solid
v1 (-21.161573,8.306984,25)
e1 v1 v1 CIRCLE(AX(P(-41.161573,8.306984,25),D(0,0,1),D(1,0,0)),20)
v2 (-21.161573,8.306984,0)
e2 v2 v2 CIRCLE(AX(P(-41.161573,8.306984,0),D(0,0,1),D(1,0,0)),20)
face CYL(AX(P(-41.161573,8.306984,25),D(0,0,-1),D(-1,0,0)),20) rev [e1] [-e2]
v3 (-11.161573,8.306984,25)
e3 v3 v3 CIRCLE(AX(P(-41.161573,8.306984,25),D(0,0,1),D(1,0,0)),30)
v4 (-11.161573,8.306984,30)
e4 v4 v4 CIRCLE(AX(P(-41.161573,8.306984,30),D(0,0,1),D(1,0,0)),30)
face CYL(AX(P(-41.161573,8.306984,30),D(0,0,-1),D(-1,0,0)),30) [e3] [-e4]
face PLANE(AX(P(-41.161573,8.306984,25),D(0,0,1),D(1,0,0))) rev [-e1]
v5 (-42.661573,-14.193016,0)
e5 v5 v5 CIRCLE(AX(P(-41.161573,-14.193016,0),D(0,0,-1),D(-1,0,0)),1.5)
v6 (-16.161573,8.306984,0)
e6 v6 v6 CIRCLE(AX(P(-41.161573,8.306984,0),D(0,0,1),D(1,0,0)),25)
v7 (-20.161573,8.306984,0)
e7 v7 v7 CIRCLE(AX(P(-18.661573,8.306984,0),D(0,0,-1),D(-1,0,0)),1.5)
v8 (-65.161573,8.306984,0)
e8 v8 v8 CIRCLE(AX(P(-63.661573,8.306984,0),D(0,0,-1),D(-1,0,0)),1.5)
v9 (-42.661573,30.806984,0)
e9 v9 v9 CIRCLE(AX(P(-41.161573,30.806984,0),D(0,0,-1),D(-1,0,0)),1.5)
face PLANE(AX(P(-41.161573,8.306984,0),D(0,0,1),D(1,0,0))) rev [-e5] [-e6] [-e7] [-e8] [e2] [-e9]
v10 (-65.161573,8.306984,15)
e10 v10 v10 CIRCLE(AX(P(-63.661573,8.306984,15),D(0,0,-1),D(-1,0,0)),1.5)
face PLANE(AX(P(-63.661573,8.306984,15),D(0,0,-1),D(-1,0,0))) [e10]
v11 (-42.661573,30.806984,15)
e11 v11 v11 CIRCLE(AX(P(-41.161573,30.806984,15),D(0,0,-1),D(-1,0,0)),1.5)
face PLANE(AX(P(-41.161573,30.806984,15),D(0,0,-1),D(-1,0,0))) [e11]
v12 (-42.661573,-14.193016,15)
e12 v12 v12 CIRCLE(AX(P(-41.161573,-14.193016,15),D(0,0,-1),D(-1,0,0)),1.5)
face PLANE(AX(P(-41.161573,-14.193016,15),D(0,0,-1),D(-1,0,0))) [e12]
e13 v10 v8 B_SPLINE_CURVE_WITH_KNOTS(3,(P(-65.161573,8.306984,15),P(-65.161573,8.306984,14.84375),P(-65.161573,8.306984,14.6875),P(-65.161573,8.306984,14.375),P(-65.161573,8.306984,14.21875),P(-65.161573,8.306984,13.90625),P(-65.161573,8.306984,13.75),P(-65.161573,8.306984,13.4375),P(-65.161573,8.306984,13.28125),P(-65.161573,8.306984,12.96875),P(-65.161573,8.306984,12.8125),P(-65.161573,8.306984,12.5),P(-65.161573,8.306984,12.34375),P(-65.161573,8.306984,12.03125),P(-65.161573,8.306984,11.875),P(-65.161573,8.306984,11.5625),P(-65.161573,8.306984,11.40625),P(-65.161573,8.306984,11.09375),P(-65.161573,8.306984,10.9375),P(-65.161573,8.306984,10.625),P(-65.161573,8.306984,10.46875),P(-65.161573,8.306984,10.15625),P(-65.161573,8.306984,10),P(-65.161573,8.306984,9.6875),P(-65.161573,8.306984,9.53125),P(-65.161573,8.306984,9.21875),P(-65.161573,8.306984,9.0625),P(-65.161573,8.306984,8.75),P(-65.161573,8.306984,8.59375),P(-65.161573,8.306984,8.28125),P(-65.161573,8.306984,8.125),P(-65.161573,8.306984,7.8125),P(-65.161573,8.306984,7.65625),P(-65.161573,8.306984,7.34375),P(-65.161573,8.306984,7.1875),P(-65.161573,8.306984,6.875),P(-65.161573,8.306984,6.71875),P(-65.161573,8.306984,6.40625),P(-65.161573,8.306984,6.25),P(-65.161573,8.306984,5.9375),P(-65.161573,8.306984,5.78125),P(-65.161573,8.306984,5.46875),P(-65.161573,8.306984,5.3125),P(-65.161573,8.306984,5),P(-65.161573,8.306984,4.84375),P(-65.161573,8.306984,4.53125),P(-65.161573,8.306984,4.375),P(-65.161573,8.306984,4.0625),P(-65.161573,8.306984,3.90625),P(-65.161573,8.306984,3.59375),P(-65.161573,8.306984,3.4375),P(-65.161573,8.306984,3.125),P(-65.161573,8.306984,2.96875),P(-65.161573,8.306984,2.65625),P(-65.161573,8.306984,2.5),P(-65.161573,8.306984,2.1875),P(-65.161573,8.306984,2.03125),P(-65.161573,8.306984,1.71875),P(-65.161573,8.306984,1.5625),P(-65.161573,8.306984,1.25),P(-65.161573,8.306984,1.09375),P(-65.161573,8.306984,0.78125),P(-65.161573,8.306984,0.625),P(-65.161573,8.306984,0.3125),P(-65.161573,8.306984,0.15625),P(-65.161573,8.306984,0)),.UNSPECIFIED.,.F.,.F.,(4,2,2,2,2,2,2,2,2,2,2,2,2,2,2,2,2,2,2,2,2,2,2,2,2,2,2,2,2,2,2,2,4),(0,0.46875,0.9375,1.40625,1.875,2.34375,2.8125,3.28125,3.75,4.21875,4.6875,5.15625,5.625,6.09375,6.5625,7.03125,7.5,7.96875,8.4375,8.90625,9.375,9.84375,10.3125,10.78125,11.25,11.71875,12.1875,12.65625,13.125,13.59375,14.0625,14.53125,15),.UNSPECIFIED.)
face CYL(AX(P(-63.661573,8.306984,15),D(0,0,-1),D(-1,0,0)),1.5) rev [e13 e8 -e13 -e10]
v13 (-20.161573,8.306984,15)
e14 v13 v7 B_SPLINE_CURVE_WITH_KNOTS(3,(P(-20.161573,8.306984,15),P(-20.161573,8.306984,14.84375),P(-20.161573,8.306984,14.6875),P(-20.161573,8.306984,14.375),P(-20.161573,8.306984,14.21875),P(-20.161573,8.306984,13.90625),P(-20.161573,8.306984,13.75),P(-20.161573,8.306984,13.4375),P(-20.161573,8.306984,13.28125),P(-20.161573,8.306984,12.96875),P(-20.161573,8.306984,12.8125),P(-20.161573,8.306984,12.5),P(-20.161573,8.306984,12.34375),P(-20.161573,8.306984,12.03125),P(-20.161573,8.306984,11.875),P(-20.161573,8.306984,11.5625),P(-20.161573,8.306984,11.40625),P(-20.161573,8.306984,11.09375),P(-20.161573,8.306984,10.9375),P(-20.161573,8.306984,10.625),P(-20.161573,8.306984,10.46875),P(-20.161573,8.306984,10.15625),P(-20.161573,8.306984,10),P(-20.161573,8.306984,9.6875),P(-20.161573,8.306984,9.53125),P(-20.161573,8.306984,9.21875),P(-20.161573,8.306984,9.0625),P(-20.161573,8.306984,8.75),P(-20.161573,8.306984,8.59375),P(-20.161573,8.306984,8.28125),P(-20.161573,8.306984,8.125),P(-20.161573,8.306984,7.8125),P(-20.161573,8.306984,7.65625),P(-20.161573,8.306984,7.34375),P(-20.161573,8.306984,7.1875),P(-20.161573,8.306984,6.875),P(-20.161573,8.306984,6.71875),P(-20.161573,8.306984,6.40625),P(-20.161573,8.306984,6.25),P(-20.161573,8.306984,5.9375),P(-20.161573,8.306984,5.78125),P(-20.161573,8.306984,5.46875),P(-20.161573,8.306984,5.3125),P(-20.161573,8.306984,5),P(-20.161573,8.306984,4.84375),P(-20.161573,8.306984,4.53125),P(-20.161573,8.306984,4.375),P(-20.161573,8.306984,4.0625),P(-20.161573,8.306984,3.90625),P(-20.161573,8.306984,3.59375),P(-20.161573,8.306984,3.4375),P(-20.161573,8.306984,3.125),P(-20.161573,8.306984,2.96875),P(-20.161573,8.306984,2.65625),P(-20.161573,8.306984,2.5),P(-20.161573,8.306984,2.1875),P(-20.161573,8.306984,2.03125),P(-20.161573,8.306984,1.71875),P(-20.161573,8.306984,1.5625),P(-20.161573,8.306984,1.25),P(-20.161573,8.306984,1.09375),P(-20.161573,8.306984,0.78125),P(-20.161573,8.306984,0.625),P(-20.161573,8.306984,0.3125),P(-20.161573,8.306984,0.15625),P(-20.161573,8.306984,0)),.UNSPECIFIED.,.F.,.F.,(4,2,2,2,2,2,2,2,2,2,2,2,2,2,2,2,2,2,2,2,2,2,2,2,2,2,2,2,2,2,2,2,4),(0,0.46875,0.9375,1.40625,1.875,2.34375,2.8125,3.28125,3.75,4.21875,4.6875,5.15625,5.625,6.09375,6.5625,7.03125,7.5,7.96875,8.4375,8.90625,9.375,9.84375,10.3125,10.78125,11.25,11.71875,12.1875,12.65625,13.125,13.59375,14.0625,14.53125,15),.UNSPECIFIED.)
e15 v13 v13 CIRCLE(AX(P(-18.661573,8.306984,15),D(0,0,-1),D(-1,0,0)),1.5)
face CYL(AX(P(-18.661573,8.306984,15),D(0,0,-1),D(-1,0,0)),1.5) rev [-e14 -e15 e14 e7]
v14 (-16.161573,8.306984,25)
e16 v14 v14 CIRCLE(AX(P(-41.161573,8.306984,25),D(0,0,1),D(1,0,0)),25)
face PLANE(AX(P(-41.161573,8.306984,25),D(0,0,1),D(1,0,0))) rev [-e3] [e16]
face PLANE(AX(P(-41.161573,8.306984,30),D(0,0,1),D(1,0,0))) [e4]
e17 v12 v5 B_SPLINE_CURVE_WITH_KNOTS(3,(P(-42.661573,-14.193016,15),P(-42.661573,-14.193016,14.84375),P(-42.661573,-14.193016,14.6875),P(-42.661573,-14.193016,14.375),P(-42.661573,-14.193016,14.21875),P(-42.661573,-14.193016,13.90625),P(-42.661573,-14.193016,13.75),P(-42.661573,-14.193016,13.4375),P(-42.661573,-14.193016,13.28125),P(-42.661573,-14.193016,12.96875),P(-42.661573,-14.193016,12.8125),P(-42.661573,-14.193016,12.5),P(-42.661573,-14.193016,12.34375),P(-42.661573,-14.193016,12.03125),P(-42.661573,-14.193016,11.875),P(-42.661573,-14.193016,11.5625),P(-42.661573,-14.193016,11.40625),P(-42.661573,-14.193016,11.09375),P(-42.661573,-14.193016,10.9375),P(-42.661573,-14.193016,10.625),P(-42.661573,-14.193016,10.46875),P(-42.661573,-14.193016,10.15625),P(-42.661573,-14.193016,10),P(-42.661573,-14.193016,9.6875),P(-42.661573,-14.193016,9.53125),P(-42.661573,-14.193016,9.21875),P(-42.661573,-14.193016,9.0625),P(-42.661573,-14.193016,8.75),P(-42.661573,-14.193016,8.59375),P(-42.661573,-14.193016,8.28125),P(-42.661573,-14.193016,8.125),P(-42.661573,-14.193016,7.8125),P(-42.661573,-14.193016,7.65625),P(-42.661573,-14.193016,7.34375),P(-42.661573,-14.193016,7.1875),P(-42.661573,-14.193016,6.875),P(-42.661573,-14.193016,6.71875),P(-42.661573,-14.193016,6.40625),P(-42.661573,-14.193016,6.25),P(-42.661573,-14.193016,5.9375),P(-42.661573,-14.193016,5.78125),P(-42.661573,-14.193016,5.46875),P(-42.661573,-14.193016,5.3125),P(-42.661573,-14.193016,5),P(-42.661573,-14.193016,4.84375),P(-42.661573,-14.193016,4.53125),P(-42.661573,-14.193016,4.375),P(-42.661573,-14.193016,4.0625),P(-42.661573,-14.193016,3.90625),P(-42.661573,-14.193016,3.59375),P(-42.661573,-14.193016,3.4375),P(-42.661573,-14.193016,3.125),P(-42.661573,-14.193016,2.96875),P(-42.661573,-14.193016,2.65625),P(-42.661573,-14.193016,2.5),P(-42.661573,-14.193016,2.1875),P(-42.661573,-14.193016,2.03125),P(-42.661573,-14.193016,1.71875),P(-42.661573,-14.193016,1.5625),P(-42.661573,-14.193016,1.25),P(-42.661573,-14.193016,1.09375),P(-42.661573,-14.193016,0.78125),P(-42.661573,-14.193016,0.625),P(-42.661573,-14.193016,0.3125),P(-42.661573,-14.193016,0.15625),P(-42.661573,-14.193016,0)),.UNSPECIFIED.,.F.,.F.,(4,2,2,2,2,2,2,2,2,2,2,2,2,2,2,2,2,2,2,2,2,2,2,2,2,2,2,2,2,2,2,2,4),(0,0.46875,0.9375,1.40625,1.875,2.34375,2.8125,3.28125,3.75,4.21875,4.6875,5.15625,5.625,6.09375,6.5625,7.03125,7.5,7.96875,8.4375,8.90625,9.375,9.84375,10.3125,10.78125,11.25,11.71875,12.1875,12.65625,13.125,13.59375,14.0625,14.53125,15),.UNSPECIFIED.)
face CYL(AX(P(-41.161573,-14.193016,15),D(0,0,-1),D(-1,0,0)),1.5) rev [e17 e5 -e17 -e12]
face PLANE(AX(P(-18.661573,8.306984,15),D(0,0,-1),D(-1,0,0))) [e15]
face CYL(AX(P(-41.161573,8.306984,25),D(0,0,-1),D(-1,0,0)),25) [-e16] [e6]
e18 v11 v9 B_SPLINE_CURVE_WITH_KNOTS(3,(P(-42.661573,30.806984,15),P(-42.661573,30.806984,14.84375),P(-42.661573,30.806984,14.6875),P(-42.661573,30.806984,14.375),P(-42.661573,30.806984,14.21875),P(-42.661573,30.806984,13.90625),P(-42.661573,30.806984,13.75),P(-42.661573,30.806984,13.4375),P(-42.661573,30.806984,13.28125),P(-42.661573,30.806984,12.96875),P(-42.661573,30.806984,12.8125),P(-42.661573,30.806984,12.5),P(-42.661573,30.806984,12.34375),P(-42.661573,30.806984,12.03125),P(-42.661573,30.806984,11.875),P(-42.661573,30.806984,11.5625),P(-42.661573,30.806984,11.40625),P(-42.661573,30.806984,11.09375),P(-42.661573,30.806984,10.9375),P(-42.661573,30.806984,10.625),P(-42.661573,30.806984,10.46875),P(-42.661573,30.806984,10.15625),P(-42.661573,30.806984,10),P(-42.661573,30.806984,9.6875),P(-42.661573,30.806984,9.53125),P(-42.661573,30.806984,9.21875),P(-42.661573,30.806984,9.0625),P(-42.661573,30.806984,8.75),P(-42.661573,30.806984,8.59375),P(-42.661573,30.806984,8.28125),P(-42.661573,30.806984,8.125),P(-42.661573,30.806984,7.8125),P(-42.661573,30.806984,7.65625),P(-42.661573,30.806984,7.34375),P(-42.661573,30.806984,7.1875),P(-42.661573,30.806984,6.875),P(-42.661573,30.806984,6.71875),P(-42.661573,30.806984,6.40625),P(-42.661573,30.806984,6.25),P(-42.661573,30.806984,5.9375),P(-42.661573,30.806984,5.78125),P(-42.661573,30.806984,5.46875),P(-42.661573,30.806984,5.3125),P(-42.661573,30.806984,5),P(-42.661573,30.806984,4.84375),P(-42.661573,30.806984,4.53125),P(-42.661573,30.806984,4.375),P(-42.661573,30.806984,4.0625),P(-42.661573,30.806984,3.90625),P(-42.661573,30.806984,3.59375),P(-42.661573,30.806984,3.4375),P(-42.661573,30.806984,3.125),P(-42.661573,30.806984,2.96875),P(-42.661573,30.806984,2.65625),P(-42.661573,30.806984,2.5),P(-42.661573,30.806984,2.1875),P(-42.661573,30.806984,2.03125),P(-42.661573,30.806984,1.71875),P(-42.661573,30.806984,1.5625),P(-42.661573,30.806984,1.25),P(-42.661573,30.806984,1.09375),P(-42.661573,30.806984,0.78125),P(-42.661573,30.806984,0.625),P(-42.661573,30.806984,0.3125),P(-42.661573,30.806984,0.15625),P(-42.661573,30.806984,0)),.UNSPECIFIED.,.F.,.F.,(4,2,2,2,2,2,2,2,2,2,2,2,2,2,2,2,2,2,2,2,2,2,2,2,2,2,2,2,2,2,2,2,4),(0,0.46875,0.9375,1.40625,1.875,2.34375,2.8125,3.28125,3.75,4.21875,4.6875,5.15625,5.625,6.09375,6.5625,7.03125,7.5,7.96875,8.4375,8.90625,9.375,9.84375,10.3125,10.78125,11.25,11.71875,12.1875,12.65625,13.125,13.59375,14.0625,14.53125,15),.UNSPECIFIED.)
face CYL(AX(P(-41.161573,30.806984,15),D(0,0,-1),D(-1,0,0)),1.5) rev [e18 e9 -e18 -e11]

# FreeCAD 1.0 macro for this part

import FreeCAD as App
import Part
import Sketcher

doc = App.newDocument("Part")
params = doc.addObject("Spreadsheet::Sheet", "Params")
for row, (alias, value) in enumerate([
    ("sketch1_diameter", "50 mm"),
    ("sketch1_diameter2", "40 mm"),
    ("pad1_length", "25 mm"),
    ("sketch2_diameter", "3 mm"),
    ("pocket1_length", "15 mm"),
    ("sketch3_diameter", "60 mm"),
    ("pad2_length", "5 mm"),
], start=1):
    params.set(f"A{row}", alias)
    params.set(f"B{row}", "=" + value)
    params.setAlias(f"B{row}", alias)

body = doc.addObject("PartDesign::Body", "Body")

sketch1 = body.newObject("Sketcher::SketchObject", "Sketch")
sketch1.AttachmentSupport = (doc.getObject("XY_Plane"), [""])
sketch1.MapMode = "FlatFace"
sketch1.addGeometry(Part.Circle(App.Vector(-41, 8, 0), App.Vector(0, 0, 1), 25), False)
sketch1.addGeometry(Part.Circle(App.Vector(-41, 8, 0), App.Vector(0, 0, 1), 20), False)
sketch1.addConstraint(Sketcher.Constraint("Coincident", 1, 3, 0, 3))
sketch1.addConstraint(Sketcher.Constraint("Diameter", 0, 50.0))
sketch1.addConstraint(Sketcher.Constraint("Diameter", 1, 40.0))
sketch1.addConstraint(Sketcher.Constraint("DistanceX", 0, 3, -1, 1, 41.161573))
sketch1.addConstraint(Sketcher.Constraint("DistanceY", -1, 1, 0, 3, 8.306984))
sketch1.setExpression("Constraints[1]", "Params.sketch1_diameter")
sketch1.setExpression("Constraints[2]", "Params.sketch1_diameter2")
pad1 = body.newObject("PartDesign::Pad", "Pad")
pad1.Profile = sketch1
pad1.setExpression("Length", "Params.pad1_length")

sketch2 = body.newObject("Sketcher::SketchObject", "Sketch001")
sketch2.AttachmentSupport = (doc.getObject("XY_Plane"), [""])
sketch2.MapMode = "FlatFace"
sketch2.addGeometry(Part.Circle(App.Vector(-41.2, 30.8, 0), App.Vector(0, 0, 1), 1.5), False)
sketch2.addGeometry(Part.Circle(App.Vector(-63.7, 8.3, 0), App.Vector(0, 0, 1), 1.5), False)
sketch2.addGeometry(Part.Circle(App.Vector(-41.2, -14.2, 0), App.Vector(0, 0, 1), 1.5), False)
sketch2.addGeometry(Part.Circle(App.Vector(-18.7, 8.3, 0), App.Vector(0, 0, 1), 1.5), False)
sketch2.addConstraint(Sketcher.Constraint("Equal", 0, 1))
sketch2.addConstraint(Sketcher.Constraint("Equal", 1, 2))
sketch2.addConstraint(Sketcher.Constraint("Equal", 2, 3))
sketch2.addConstraint(Sketcher.Constraint("Horizontal", 1, 3, 3, 3))
sketch2.addConstraint(Sketcher.Constraint("Vertical", 0, 3, 2, 3))
sketch2.addConstraint(Sketcher.Constraint("Diameter", 0, 3.0))
sketch2.addConstraint(Sketcher.Constraint("DistanceY", 2, 3, 0, 3, 45.0))
sketch2.addConstraint(Sketcher.Constraint("DistanceX", 1, 3, 3, 3, 45.0))
sketch2.addConstraint(Sketcher.Constraint("DistanceX", 1, 3, 0, 3, 22.5))
sketch2.addConstraint(Sketcher.Constraint("DistanceY", 1, 3, 0, 3, 22.5))
sketch2.addConstraint(Sketcher.Constraint("DistanceX", 0, 3, -1, 1, 41.161573))
sketch2.addConstraint(Sketcher.Constraint("DistanceY", -1, 1, 0, 3, 30.806984))
sketch2.setExpression("Constraints[5]", "Params.sketch2_diameter")
pocket1 = body.newObject("PartDesign::Pocket", "Pocket")
pocket1.Profile = sketch2
pocket1.setExpression("Length", "Params.pocket1_length")
pocket1.Reversed = True

sketch3 = body.newObject("Sketcher::SketchObject", "Sketch002")
sketch3.AttachmentSupport = (doc.getObject("XY_Plane"), [""])
sketch3.MapMode = "FlatFace"
sketch3.AttachmentOffset = App.Placement(App.Vector(0, 0, 25), App.Rotation())
sketch3.addGeometry(Part.Circle(App.Vector(-41, 8, 0), App.Vector(0, 0, 1), 30), False)
sketch3.addConstraint(Sketcher.Constraint("Diameter", 0, 60.0))
sketch3.addConstraint(Sketcher.Constraint("DistanceX", 0, 3, -1, 1, 41.161573))
sketch3.addConstraint(Sketcher.Constraint("DistanceY", -1, 1, 0, 3, 8.306984))
sketch3.setExpression("Constraints[0]", "Params.sketch3_diameter")
pad2 = body.newObject("PartDesign::Pad", "Pad001")
pad2.Profile = sketch3
pad2.setExpression("Length", "Params.pad2_length")

doc.recompute()
